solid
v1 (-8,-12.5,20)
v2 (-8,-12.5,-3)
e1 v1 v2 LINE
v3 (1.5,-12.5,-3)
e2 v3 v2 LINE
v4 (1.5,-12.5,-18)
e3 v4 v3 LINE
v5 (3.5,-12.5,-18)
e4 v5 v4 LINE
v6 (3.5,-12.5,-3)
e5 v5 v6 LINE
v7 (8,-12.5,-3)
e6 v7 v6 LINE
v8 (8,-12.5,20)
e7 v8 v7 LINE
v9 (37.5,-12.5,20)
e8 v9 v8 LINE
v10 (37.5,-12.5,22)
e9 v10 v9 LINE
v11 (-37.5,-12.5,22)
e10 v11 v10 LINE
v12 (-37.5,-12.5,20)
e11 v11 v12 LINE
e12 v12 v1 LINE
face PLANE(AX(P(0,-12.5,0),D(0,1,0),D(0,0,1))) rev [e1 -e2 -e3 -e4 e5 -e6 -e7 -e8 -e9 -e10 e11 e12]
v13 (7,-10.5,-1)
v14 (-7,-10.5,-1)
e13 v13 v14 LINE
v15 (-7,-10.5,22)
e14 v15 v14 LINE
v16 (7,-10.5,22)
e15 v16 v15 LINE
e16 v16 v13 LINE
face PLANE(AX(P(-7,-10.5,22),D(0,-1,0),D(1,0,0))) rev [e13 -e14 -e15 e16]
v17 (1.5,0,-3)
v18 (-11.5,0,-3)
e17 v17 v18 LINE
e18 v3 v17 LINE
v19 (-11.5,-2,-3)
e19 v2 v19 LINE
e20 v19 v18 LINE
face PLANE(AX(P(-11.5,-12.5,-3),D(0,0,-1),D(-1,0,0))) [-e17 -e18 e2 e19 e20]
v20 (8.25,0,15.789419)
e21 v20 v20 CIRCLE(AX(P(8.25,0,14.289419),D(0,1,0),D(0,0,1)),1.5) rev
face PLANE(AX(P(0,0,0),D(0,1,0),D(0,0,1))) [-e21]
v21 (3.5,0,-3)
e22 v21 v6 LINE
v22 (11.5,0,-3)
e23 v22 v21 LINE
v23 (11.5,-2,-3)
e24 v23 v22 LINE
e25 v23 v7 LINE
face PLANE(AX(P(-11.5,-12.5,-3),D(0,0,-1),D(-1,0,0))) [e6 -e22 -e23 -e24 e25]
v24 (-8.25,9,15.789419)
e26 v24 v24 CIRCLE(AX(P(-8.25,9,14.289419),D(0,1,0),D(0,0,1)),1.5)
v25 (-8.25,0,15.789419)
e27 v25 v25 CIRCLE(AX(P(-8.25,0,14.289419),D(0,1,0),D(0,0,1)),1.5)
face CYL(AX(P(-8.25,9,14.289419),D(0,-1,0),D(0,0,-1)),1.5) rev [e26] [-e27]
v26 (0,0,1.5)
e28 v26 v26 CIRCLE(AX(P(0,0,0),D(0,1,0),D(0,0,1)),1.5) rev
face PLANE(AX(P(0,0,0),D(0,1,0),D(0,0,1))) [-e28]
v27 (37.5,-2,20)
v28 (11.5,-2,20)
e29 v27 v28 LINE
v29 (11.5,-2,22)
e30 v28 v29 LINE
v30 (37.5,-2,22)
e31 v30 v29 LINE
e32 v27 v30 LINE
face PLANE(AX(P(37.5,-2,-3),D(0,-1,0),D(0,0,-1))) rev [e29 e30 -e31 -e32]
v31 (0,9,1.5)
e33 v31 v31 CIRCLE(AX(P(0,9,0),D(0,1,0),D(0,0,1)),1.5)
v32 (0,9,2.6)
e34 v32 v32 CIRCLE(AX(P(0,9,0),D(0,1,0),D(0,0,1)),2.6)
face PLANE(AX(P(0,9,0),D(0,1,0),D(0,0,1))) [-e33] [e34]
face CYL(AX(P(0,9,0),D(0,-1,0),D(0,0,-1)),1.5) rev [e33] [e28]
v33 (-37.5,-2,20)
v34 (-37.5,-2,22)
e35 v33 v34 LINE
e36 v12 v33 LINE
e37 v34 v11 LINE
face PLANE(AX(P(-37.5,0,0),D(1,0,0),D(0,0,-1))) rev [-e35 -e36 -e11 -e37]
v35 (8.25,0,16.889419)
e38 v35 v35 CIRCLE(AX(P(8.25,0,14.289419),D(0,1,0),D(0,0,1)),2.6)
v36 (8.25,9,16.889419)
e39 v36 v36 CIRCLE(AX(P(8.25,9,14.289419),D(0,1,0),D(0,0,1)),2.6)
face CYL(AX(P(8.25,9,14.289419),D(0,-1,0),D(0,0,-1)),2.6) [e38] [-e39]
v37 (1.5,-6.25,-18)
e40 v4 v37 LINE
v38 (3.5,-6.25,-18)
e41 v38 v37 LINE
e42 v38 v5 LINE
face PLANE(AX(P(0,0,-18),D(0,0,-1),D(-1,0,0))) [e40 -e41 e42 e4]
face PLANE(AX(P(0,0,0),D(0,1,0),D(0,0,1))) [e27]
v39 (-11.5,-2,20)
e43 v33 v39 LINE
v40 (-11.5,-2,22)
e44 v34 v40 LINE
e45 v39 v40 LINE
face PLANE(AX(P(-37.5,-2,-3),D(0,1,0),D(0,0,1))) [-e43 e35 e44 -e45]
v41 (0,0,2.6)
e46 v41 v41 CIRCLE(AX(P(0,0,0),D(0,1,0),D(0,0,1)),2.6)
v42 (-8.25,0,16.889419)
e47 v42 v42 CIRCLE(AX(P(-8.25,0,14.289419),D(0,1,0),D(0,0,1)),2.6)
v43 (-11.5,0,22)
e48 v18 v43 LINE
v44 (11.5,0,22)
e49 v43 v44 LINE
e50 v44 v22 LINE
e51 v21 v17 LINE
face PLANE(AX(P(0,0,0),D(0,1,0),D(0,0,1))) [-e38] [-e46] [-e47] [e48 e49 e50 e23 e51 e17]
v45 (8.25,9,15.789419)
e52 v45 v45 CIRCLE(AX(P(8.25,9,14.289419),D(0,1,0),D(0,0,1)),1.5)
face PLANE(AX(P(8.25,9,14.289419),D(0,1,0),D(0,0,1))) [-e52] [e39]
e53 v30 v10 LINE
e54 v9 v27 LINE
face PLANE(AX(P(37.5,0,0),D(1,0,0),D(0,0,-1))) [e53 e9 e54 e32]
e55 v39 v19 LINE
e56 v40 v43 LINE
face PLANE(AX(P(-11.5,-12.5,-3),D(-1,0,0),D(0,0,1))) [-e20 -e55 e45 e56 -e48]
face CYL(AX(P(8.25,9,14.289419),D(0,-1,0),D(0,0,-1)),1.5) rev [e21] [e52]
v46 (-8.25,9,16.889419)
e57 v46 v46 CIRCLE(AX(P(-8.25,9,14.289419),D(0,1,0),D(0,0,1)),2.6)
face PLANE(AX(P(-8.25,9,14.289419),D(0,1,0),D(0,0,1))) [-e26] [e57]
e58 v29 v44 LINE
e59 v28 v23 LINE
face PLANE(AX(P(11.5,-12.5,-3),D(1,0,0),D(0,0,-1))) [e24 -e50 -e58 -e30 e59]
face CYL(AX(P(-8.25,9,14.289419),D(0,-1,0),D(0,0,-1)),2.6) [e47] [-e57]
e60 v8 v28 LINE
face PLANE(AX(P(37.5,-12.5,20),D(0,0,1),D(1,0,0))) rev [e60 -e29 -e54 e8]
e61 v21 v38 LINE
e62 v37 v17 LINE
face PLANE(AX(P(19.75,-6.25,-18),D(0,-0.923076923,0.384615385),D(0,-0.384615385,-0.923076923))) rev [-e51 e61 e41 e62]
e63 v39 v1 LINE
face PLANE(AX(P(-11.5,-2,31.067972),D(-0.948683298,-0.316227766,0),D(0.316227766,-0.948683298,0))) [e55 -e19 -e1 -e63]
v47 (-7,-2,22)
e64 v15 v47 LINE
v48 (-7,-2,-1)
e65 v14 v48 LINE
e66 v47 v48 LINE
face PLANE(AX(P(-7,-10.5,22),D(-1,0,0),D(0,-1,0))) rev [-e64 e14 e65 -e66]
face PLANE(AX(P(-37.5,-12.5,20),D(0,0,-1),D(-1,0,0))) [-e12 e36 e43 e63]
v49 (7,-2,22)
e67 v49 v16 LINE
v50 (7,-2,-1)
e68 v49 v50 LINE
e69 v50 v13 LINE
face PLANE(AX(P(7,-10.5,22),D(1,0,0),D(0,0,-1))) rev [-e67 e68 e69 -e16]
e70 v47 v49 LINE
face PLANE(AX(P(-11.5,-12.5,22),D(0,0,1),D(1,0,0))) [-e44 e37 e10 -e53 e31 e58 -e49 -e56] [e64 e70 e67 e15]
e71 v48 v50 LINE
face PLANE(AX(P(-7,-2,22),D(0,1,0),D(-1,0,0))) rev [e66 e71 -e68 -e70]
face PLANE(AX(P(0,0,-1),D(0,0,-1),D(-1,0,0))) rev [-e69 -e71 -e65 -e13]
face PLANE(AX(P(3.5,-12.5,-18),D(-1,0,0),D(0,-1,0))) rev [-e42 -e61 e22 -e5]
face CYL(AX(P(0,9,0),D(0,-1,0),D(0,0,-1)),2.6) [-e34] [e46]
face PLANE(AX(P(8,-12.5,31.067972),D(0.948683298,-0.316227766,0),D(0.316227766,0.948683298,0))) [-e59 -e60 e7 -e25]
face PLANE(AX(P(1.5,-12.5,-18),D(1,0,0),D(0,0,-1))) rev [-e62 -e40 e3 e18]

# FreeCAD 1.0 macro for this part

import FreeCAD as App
import Part
import Sketcher
from FreeCAD import Vector


def add_polygon(sketch, points):
    """Adds a closed chain of lines whose ends are joined by coincident constraints."""
    first, n = sketch.GeometryCount, len(points)
    for a, b in zip(points, points[1:] + points[:1]):
        sketch.addGeometry(Part.LineSegment(App.Vector(*a, 0), App.Vector(*b, 0)), False)
    for i in range(n):
        sketch.addConstraint(Sketcher.Constraint("Coincident", first + i, 2, first + (i + 1) % n, 1))

doc = App.newDocument("Part")
params = doc.addObject("Spreadsheet::Sheet", "Params")
for row, (alias, value) in enumerate([
    ("sketch1_diameter", "3 mm"),
    ("sketch1_diameter2", "5.2 mm"),
    ("pad1_length", "9 mm"),
    ("sketch2_diameter", "3 mm"),
    ("sketch2_diameter2", "5.2 mm"),
    ("pad2_length", "9 mm"),
    ("sketch3_diameter", "3 mm"),
    ("sketch3_diameter2", "5.2 mm"),
    ("pad3_length", "9 mm"),
    ("sketch4_width", "23 mm"),
    ("sketch4_height", "25 mm"),
    ("pad4_length", "12.5 mm"),
    ("sketch5_width", "14 mm"),
    ("sketch5_height", "8.5 mm"),
    ("sketch6_height", "2 mm"),
    ("sketch6_width", "10.5 mm"),
    ("pad5_length", "26 mm"),
    ("sketch7_height", "2 mm"),
    ("sketch7_width", "10.5 mm"),
    ("pad6_length", "26 mm"),
    ("sketch8_width", "2 mm"),
    ("sketch8_height", "12.5 mm"),
    ("pad7_length", "15 mm"),
    ("sketch9_width", "3.5 mm"),
    ("sketch9_height", "10.5 mm"),
    ("pocket2_length", "23 mm"),
    ("sketch10_height", "15 mm"),
    ("sketch10_width", "6.25 mm"),
    ("pocket3_length", "2 mm"),
], start=1):
    params.set(f"A{row}", alias)
    params.set(f"B{row}", "=" + value)
    params.setAlias(f"B{row}", alias)

body = doc.addObject("PartDesign::Body", "Body")

sketch1 = body.newObject("Sketcher::SketchObject", "Sketch")
sketch1.AttachmentSupport = (doc.getObject("XZ_Plane"), [""])
sketch1.MapMode = "FlatFace"
sketch1.addGeometry([
    Part.Circle(Vector(-8.2, 14.3, 0), Vector(0, 0, 1), 2.6),
    Part.Circle(Vector(-8.2, 14.3, 0), Vector(0, 0, 1), 1.5),
], False)
sketch1.addConstraint([
    Sketcher.Constraint("Coincident", 1, 3, 0, 3),
    Sketcher.Constraint("Diameter", 1, 3.0),
    Sketcher.Constraint("Diameter", 0, 5.2),
    Sketcher.Constraint("DistanceX", 0, 3, -1, 1, 8.25),
    Sketcher.Constraint("DistanceY", -1, 1, 0, 3, 14.289419),
])
sketch1.setExpression("Constraints[1]", "Params.sketch1_diameter")
sketch1.setExpression("Constraints[2]", "Params.sketch1_diameter2")
pad1 = body.newObject("PartDesign::Pad", "Pad")
pad1.Profile = sketch1
pad1.setExpression("Length", "Params.pad1_length")
pad1.Reversed = True
body2 = doc.addObject("PartDesign::Body", "Body001")

sketch2 = body2.newObject("Sketcher::SketchObject", "Sketch001")
sketch2.AttachmentSupport = (doc.getObject("XZ_Plane001"), [""])
sketch2.MapMode = "FlatFace"
sketch2.addGeometry([
    Part.Circle(Vector(0, 0, 0), Vector(0, 0, 1), 2.6),
    Part.Circle(Vector(0, 0, 0), Vector(0, 0, 1), 1.5),
], False)
sketch2.addConstraint([
    Sketcher.Constraint("Coincident", 0, 3, -1, 1),
    Sketcher.Constraint("Coincident", 1, 3, -1, 1),
    Sketcher.Constraint("Diameter", 1, 3.0),
    Sketcher.Constraint("Diameter", 0, 5.2),
])
sketch2.setExpression("Constraints[2]", "Params.sketch2_diameter")
sketch2.setExpression("Constraints[3]", "Params.sketch2_diameter2")
pad2 = body2.newObject("PartDesign::Pad", "Pad001")
pad2.Profile = sketch2
pad2.setExpression("Length", "Params.pad2_length")
pad2.Reversed = True
body3 = doc.addObject("PartDesign::Body", "Body002")

sketch3 = body3.newObject("Sketcher::SketchObject", "Sketch002")
sketch3.AttachmentSupport = (doc.getObject("XZ_Plane002"), [""])
sketch3.MapMode = "FlatFace"
sketch3.addGeometry([
    Part.Circle(Vector(8.2, 14.3, 0), Vector(0, 0, 1), 2.6),
    Part.Circle(Vector(8.2, 14.3, 0), Vector(0, 0, 1), 1.5),
], False)
sketch3.addConstraint([
    Sketcher.Constraint("Coincident", 1, 3, 0, 3),
    Sketcher.Constraint("Diameter", 1, 3.0),
    Sketcher.Constraint("Diameter", 0, 5.2),
    Sketcher.Constraint("DistanceX", -1, 1, 0, 3, 8.25),
    Sketcher.Constraint("DistanceY", -1, 1, 0, 3, 14.289419),
])
sketch3.setExpression("Constraints[1]", "Params.sketch3_diameter")
sketch3.setExpression("Constraints[2]", "Params.sketch3_diameter2")
pad3 = body3.newObject("PartDesign::Pad", "Pad002")
pad3.Profile = sketch3
pad3.setExpression("Length", "Params.pad3_length")
pad3.Reversed = True
body.AllowCompound = True
doc.recompute()

boolean = body.newObject("PartDesign::Boolean", "Boolean")
boolean.Type = "Fuse"
boolean.addObjects([body2])
doc.recompute()

boolean2 = body.newObject("PartDesign::Boolean", "Boolean001")
boolean2.Type = "Fuse"
boolean2.addObjects([body3])

sketch4 = body.newObject("Sketcher::SketchObject", "Sketch003")
sketch4.AttachmentSupport = (doc.getObject("XZ_Plane"), [""])
sketch4.MapMode = "FlatFace"
add_polygon(sketch4, [(-12, -3), (-12, 22), (12, 22), (12, -3)])
sketch4.addConstraint([
    Sketcher.Constraint("Vertical", 0),
    Sketcher.Constraint("Horizontal", 1),
    Sketcher.Constraint("Vertical", 2),
    Sketcher.Constraint("Horizontal", 3),
    Sketcher.Constraint("DistanceX", 1, 1, 1, 2, 23.0),
    Sketcher.Constraint("DistanceY", 0, 1, 0, 2, 25.0),
    Sketcher.Constraint("DistanceY", -1, 1, 0, 2, 22.0),
    Sketcher.Constraint("DistanceX", 0, 2, -1, 1, 11.5),
])
sketch4.setExpression("Constraints[8]", "Params.sketch4_width")
sketch4.setExpression("Constraints[9]", "Params.sketch4_height")
pad4 = body.newObject("PartDesign::Pad", "Pad003")
pad4.Profile = sketch4
pad4.setExpression("Length", "Params.pad4_length")

sketch5 = body.newObject("Sketcher::SketchObject", "Sketch004")
sketch5.AttachmentSupport = (doc.getObject("XY_Plane"), [""])
sketch5.MapMode = "FlatFace"
sketch5.AttachmentOffset = App.Placement(Vector(0, 0, -1), App.Rotation())
add_polygon(sketch5, [(7, -2), (7, -10), (-7, -10), (-7, -2)])
sketch5.addConstraint([
    Sketcher.Constraint("Vertical", 0),
    Sketcher.Constraint("Horizontal", 1),
    Sketcher.Constraint("Vertical", 2),
    Sketcher.Constraint("Horizontal", 3),
    Sketcher.Constraint("DistanceX", 1, 2, 1, 1, 14.0),
    Sketcher.Constraint("DistanceY", 0, 2, 0, 1, 8.5),
    Sketcher.Constraint("DistanceX", -1, 1, 0, 2, 7.0),
    Sketcher.Constraint("DistanceY", 2, 2, -1, 1, 2.0),
])
sketch5.setExpression("Constraints[8]", "Params.sketch5_width")
sketch5.setExpression("Constraints[9]", "Params.sketch5_height")
pocket1 = body.newObject("PartDesign::Pocket", "Pocket")
pocket1.Profile = sketch5
pocket1.Type = "ThroughAll"
pocket1.Reversed = True

sketch6 = body.newObject("Sketcher::SketchObject", "Sketch005")
sketch6.AttachmentSupport = (doc.getObject("YZ_Plane"), [""])
sketch6.MapMode = "FlatFace"
sketch6.AttachmentOffset = App.Placement(Vector(0, 0, -11.5), App.Rotation())
add_polygon(sketch6, [(-2, 20), (-12.5, 20), (-12.5, 22), (-2, 22)])
sketch6.addConstraint([
    Sketcher.Constraint("Horizontal", 0),
    Sketcher.Constraint("Vertical", 1),
    Sketcher.Constraint("Horizontal", 2),
    Sketcher.Constraint("Vertical", 3),
    Sketcher.Constraint("DistanceY", 1, 1, 1, 2, 2.0),
    Sketcher.Constraint("DistanceX", 0, 2, 0, 1, 10.5),
    Sketcher.Constraint("DistanceY", -1, 1, 0, 2, 20.0),
    Sketcher.Constraint("DistanceX", 2, 2, -1, 1, 2.0),
])
sketch6.setExpression("Constraints[8]", "Params.sketch6_height")
sketch6.setExpression("Constraints[9]", "Params.sketch6_width")
pad5 = body.newObject("PartDesign::Pad", "Pad004")
pad5.Profile = sketch6
pad5.setExpression("Length", "Params.pad5_length")
pad5.Reversed = True

sketch7 = body.newObject("Sketcher::SketchObject", "Sketch006")
sketch7.AttachmentSupport = (doc.getObject("YZ_Plane"), [""])
sketch7.MapMode = "FlatFace"
sketch7.AttachmentOffset = App.Placement(Vector(0, 0, 11.5), App.Rotation())
add_polygon(sketch7, [(-2, 20), (-12.5, 20), (-12.5, 22), (-2, 22)])
sketch7.addConstraint([
    Sketcher.Constraint("Horizontal", 0),
    Sketcher.Constraint("Vertical", 1),
    Sketcher.Constraint("Horizontal", 2),
    Sketcher.Constraint("Vertical", 3),
    Sketcher.Constraint("DistanceY", 1, 1, 1, 2, 2.0),
    Sketcher.Constraint("DistanceX", 0, 2, 0, 1, 10.5),
    Sketcher.Constraint("DistanceY", -1, 1, 0, 2, 20.0),
    Sketcher.Constraint("DistanceX", 2, 2, -1, 1, 2.0),
])
sketch7.setExpression("Constraints[8]", "Params.sketch7_height")
sketch7.setExpression("Constraints[9]", "Params.sketch7_width")
pad6 = body.newObject("PartDesign::Pad", "Pad005")
pad6.Profile = sketch7
pad6.setExpression("Length", "Params.pad6_length")

sketch8 = body.newObject("Sketcher::SketchObject", "Sketch007")
sketch8.AttachmentSupport = (doc.getObject("XY_Plane"), [""])
sketch8.MapMode = "FlatFace"
sketch8.AttachmentOffset = App.Placement(Vector(0, 0, -3), App.Rotation())
add_polygon(sketch8, [(3.5, 0), (3.5, -12.5), (1.5, -12.5), (1.5, 0)])
sketch8.addConstraint([
    Sketcher.Constraint("Vertical", 0),
    Sketcher.Constraint("Horizontal", 1),
    Sketcher.Constraint("Vertical", 2),
    Sketcher.Constraint("Horizontal", 3),
    Sketcher.Constraint("PointOnObject", 2, 2, -1),
    Sketcher.Constraint("DistanceX", 1, 2, 1, 1, 2.0),
    Sketcher.Constraint("DistanceY", 0, 2, 0, 1, 12.5),
    Sketcher.Constraint("DistanceX", -1, 1, 0, 2, 3.5),
])
sketch8.setExpression("Constraints[9]", "Params.sketch8_width")
sketch8.setExpression("Constraints[10]", "Params.sketch8_height")
pad7 = body.newObject("PartDesign::Pad", "Pad006")
pad7.Profile = sketch8
pad7.setExpression("Length", "Params.pad7_length")
pad7.Reversed = True

sketch9 = body.newObject("Sketcher::SketchObject", "Sketch008")
sketch9.AttachmentSupport = (doc.getObject("XY_Plane"), [""])
sketch9.MapMode = "FlatFace"
sketch9.AttachmentOffset = App.Placement(Vector(0, 0, -3), App.Rotation())
add_polygon(sketch9, [(-8, -12.5), (-11.5, -2), (-11.5, -12.5)])
add_polygon(sketch9, [(11.5, -12.5), (11.5, -2), (8, -12.5)])
sketch9.addConstraint([
    Sketcher.Constraint("Vertical", 1),
    Sketcher.Constraint("Horizontal", 2),
    Sketcher.Constraint("Vertical", 3),
    Sketcher.Constraint("Horizontal", 5),
    Sketcher.Constraint("Symmetric", 0, 2, 3, 2, -2),
    Sketcher.Constraint("Symmetric", 2, 2, 4, 2, -2),
    Sketcher.Constraint("DistanceX", 2, 1, 2, 2, 3.5),
    Sketcher.Constraint("DistanceY", 1, 2, 1, 1, 10.5),
    Sketcher.Constraint("DistanceY", 0, 2, -1, 1, 2.0),
    Sketcher.Constraint("DistanceX", 2, 2, -1, 1, 8.0),
])
sketch9.setExpression("Constraints[12]", "Params.sketch9_width")
sketch9.setExpression("Constraints[13]", "Params.sketch9_height")
pocket2 = body.newObject("PartDesign::Pocket", "Pocket001")
pocket2.Profile = sketch9
pocket2.setExpression("Length", "Params.pocket2_length")
pocket2.Reversed = True

sketch10 = body.newObject("Sketcher::SketchObject", "Sketch009")
sketch10.AttachmentSupport = (doc.getObject("YZ_Plane"), [""])
sketch10.MapMode = "FlatFace"
sketch10.AttachmentOffset = App.Placement(Vector(0, 0, 1.5), App.Rotation())
add_polygon(sketch10, [(0, -18), (-6, -18), (0, -3)])
sketch10.addConstraint([
    Sketcher.Constraint("Horizontal", 0),
    Sketcher.Constraint("Vertical", 2),
    Sketcher.Constraint("PointOnObject", 1, 2, -2),
    Sketcher.Constraint("DistanceY", 2, 2, 2, 1, 15.0),
    Sketcher.Constraint("DistanceY", 0, 2, -1, 1, 18.0),
    Sketcher.Constraint("DistanceX", 0, 2, 0, 1, 6.25),
])
sketch10.setExpression("Constraints[6]", "Params.sketch10_height")
sketch10.setExpression("Constraints[8]", "Params.sketch10_width")
pocket3 = body.newObject("PartDesign::Pocket", "Pocket002")
pocket3.Profile = sketch10
pocket3.setExpression("Length", "Params.pocket3_length")
pocket3.Reversed = True

doc.recompute()
